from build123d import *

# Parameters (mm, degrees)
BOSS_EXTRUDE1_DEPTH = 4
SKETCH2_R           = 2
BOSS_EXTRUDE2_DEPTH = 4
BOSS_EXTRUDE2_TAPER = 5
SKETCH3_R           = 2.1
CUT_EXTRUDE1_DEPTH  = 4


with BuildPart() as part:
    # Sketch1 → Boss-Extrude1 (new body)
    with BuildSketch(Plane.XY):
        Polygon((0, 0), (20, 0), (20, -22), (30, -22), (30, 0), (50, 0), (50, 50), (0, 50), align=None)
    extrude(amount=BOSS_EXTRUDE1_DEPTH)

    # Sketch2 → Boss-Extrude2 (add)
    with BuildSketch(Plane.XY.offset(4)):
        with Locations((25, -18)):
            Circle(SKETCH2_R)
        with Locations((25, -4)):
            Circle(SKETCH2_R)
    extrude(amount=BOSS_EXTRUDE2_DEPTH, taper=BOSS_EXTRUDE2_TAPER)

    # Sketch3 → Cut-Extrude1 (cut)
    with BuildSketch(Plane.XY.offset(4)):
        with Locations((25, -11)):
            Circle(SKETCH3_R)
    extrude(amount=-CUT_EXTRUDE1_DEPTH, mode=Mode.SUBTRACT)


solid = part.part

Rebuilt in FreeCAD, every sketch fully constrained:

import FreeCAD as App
import Part
import Sketcher


def add_polygon(sketch, points):
    """Adds a closed chain of lines whose ends are joined by coincident constraints."""
    first, n = sketch.GeometryCount, len(points)
    for a, b in zip(points, points[1:] + points[:1]):
        sketch.addGeometry(Part.LineSegment(App.Vector(*a, 0), App.Vector(*b, 0)), False)
    for i in range(n):
        sketch.addConstraint(Sketcher.Constraint("Coincident", first + i, 2, first + (i + 1) % n, 1))

doc = App.newDocument("Part")
params = doc.addObject("Spreadsheet::Sheet", "Params")
for row, (alias, value) in enumerate([
    ("sketch1_width", "20 mm"),
    ("sketch1_width2", "10 mm"),
    ("sketch1_height", "22 mm"),
    ("pad1_length", "4 mm"),
    ("sketch2_diameter", "4 mm"),
    ("pad2_length", "4 mm"),
    ("pad2_taper", "-5 deg"),
    ("sketch3_diameter", "4.2 mm"),
    ("pocket1_length", "4 mm"),
], start=1):
    params.set(f"A{row}", alias)
    params.set(f"B{row}", "=" + value)
    params.setAlias(f"B{row}", alias)

body = doc.addObject("PartDesign::Body", "Body")

# Sketch on XY plane
sketch1 = body.newObject("Sketcher::SketchObject", "Sketch")
sketch1.AttachmentSupport = (doc.getObject("XY_Plane"), [""])
sketch1.MapMode = "FlatFace"
add_polygon(sketch1, [(0, 0), (20, 0), (20, -22), (30, -22), (30, 0), (50, 0), (50, 50), (0, 50)])  # lines 0-7
sketch1.addConstraint(Sketcher.Constraint("Horizontal", 0))
sketch1.addConstraint(Sketcher.Constraint("Vertical", 1))
sketch1.addConstraint(Sketcher.Constraint("Horizontal", 2))
sketch1.addConstraint(Sketcher.Constraint("Vertical", 3))
sketch1.addConstraint(Sketcher.Constraint("Horizontal", 4))
sketch1.addConstraint(Sketcher.Constraint("Vertical", 5))
sketch1.addConstraint(Sketcher.Constraint("Horizontal", 6))
sketch1.addConstraint(Sketcher.Constraint("Vertical", 7))
sketch1.addConstraint(Sketcher.Constraint("Coincident", 7, 2, -1, 1))
sketch1.addConstraint(Sketcher.Constraint("PointOnObject", 3, 2, -1))
sketch1.addConstraint(Sketcher.Constraint("Equal", 0, 4))
sketch1.addConstraint(Sketcher.Constraint("Equal", 6, 5))
sketch1.addConstraint(Sketcher.Constraint("DistanceX", 0, 1, 0, 2, 20.0))
sketch1.addConstraint(Sketcher.Constraint("DistanceX", 2, 1, 2, 2, 10.0))
sketch1.addConstraint(Sketcher.Constraint("DistanceY", 1, 2, 1, 1, 22.0))
sketch1.setExpression("Constraints[20]", "Params.sketch1_width")
sketch1.setExpression("Constraints[21]", "Params.sketch1_width2")
sketch1.setExpression("Constraints[22]", "Params.sketch1_height")
pad1 = body.newObject("PartDesign::Pad", "Pad")
pad1.Profile = sketch1
pad1.setExpression("Length", "Params.pad1_length")

# Sketch on XY plane
sketch2 = body.newObject("Sketcher::SketchObject", "Sketch001")
sketch2.AttachmentSupport = (doc.getObject("XY_Plane"), [""])
sketch2.MapMode = "FlatFace"
sketch2.AttachmentOffset = App.Placement(App.Vector(0, 0, 4), App.Rotation())
sketch2.addGeometry(Part.Circle(App.Vector(25, -18, 0), App.Vector(0, 0, 1), 2), False)
sketch2.addGeometry(Part.Circle(App.Vector(25, -4, 0), App.Vector(0, 0, 1), 2), False)
sketch2.addConstraint(Sketcher.Constraint("Equal", 0, 1))
sketch2.addConstraint(Sketcher.Constraint("Vertical", 0, 3, 1, 3))
sketch2.addConstraint(Sketcher.Constraint("Diameter", 0, 4.0))
sketch2.addConstraint(Sketcher.Constraint("DistanceX", -1, 1, 0, 3, 25.0))
sketch2.addConstraint(Sketcher.Constraint("DistanceY", 0, 3, -1, 1, 18.0))
sketch2.addConstraint(Sketcher.Constraint("DistanceY", 1, 3, -1, 1, 4.0))
sketch2.setExpression("Constraints[2]", "Params.sketch2_diameter")
pad2 = body.newObject("PartDesign::Pad", "Pad001")
pad2.Profile = sketch2
pad2.setExpression("Length", "Params.pad2_length")
pad2.setExpression("TaperAngle", "Params.pad2_taper")

# Sketch on XY plane
sketch3 = body.newObject("Sketcher::SketchObject", "Sketch002")
sketch3.AttachmentSupport = (doc.getObject("XY_Plane"), [""])
sketch3.MapMode = "FlatFace"
sketch3.AttachmentOffset = App.Placement(App.Vector(0, 0, 4), App.Rotation())
sketch3.addGeometry(Part.Circle(App.Vector(25, -11, 0), App.Vector(0, 0, 1), 2.1), False)
sketch3.addConstraint(Sketcher.Constraint("Diameter", 0, 4.2))
sketch3.addConstraint(Sketcher.Constraint("DistanceX", -1, 1, 0, 3, 25.0))
sketch3.addConstraint(Sketcher.Constraint("DistanceY", 0, 3, -1, 1, 11.0))
sketch3.setExpression("Constraints[0]", "Params.sketch3_diameter")
pocket1 = body.newObject("PartDesign::Pocket", "Pocket")
pocket1.Profile = sketch3
pocket1.setExpression("Length", "Params.pocket1_length")

doc.recompute()
